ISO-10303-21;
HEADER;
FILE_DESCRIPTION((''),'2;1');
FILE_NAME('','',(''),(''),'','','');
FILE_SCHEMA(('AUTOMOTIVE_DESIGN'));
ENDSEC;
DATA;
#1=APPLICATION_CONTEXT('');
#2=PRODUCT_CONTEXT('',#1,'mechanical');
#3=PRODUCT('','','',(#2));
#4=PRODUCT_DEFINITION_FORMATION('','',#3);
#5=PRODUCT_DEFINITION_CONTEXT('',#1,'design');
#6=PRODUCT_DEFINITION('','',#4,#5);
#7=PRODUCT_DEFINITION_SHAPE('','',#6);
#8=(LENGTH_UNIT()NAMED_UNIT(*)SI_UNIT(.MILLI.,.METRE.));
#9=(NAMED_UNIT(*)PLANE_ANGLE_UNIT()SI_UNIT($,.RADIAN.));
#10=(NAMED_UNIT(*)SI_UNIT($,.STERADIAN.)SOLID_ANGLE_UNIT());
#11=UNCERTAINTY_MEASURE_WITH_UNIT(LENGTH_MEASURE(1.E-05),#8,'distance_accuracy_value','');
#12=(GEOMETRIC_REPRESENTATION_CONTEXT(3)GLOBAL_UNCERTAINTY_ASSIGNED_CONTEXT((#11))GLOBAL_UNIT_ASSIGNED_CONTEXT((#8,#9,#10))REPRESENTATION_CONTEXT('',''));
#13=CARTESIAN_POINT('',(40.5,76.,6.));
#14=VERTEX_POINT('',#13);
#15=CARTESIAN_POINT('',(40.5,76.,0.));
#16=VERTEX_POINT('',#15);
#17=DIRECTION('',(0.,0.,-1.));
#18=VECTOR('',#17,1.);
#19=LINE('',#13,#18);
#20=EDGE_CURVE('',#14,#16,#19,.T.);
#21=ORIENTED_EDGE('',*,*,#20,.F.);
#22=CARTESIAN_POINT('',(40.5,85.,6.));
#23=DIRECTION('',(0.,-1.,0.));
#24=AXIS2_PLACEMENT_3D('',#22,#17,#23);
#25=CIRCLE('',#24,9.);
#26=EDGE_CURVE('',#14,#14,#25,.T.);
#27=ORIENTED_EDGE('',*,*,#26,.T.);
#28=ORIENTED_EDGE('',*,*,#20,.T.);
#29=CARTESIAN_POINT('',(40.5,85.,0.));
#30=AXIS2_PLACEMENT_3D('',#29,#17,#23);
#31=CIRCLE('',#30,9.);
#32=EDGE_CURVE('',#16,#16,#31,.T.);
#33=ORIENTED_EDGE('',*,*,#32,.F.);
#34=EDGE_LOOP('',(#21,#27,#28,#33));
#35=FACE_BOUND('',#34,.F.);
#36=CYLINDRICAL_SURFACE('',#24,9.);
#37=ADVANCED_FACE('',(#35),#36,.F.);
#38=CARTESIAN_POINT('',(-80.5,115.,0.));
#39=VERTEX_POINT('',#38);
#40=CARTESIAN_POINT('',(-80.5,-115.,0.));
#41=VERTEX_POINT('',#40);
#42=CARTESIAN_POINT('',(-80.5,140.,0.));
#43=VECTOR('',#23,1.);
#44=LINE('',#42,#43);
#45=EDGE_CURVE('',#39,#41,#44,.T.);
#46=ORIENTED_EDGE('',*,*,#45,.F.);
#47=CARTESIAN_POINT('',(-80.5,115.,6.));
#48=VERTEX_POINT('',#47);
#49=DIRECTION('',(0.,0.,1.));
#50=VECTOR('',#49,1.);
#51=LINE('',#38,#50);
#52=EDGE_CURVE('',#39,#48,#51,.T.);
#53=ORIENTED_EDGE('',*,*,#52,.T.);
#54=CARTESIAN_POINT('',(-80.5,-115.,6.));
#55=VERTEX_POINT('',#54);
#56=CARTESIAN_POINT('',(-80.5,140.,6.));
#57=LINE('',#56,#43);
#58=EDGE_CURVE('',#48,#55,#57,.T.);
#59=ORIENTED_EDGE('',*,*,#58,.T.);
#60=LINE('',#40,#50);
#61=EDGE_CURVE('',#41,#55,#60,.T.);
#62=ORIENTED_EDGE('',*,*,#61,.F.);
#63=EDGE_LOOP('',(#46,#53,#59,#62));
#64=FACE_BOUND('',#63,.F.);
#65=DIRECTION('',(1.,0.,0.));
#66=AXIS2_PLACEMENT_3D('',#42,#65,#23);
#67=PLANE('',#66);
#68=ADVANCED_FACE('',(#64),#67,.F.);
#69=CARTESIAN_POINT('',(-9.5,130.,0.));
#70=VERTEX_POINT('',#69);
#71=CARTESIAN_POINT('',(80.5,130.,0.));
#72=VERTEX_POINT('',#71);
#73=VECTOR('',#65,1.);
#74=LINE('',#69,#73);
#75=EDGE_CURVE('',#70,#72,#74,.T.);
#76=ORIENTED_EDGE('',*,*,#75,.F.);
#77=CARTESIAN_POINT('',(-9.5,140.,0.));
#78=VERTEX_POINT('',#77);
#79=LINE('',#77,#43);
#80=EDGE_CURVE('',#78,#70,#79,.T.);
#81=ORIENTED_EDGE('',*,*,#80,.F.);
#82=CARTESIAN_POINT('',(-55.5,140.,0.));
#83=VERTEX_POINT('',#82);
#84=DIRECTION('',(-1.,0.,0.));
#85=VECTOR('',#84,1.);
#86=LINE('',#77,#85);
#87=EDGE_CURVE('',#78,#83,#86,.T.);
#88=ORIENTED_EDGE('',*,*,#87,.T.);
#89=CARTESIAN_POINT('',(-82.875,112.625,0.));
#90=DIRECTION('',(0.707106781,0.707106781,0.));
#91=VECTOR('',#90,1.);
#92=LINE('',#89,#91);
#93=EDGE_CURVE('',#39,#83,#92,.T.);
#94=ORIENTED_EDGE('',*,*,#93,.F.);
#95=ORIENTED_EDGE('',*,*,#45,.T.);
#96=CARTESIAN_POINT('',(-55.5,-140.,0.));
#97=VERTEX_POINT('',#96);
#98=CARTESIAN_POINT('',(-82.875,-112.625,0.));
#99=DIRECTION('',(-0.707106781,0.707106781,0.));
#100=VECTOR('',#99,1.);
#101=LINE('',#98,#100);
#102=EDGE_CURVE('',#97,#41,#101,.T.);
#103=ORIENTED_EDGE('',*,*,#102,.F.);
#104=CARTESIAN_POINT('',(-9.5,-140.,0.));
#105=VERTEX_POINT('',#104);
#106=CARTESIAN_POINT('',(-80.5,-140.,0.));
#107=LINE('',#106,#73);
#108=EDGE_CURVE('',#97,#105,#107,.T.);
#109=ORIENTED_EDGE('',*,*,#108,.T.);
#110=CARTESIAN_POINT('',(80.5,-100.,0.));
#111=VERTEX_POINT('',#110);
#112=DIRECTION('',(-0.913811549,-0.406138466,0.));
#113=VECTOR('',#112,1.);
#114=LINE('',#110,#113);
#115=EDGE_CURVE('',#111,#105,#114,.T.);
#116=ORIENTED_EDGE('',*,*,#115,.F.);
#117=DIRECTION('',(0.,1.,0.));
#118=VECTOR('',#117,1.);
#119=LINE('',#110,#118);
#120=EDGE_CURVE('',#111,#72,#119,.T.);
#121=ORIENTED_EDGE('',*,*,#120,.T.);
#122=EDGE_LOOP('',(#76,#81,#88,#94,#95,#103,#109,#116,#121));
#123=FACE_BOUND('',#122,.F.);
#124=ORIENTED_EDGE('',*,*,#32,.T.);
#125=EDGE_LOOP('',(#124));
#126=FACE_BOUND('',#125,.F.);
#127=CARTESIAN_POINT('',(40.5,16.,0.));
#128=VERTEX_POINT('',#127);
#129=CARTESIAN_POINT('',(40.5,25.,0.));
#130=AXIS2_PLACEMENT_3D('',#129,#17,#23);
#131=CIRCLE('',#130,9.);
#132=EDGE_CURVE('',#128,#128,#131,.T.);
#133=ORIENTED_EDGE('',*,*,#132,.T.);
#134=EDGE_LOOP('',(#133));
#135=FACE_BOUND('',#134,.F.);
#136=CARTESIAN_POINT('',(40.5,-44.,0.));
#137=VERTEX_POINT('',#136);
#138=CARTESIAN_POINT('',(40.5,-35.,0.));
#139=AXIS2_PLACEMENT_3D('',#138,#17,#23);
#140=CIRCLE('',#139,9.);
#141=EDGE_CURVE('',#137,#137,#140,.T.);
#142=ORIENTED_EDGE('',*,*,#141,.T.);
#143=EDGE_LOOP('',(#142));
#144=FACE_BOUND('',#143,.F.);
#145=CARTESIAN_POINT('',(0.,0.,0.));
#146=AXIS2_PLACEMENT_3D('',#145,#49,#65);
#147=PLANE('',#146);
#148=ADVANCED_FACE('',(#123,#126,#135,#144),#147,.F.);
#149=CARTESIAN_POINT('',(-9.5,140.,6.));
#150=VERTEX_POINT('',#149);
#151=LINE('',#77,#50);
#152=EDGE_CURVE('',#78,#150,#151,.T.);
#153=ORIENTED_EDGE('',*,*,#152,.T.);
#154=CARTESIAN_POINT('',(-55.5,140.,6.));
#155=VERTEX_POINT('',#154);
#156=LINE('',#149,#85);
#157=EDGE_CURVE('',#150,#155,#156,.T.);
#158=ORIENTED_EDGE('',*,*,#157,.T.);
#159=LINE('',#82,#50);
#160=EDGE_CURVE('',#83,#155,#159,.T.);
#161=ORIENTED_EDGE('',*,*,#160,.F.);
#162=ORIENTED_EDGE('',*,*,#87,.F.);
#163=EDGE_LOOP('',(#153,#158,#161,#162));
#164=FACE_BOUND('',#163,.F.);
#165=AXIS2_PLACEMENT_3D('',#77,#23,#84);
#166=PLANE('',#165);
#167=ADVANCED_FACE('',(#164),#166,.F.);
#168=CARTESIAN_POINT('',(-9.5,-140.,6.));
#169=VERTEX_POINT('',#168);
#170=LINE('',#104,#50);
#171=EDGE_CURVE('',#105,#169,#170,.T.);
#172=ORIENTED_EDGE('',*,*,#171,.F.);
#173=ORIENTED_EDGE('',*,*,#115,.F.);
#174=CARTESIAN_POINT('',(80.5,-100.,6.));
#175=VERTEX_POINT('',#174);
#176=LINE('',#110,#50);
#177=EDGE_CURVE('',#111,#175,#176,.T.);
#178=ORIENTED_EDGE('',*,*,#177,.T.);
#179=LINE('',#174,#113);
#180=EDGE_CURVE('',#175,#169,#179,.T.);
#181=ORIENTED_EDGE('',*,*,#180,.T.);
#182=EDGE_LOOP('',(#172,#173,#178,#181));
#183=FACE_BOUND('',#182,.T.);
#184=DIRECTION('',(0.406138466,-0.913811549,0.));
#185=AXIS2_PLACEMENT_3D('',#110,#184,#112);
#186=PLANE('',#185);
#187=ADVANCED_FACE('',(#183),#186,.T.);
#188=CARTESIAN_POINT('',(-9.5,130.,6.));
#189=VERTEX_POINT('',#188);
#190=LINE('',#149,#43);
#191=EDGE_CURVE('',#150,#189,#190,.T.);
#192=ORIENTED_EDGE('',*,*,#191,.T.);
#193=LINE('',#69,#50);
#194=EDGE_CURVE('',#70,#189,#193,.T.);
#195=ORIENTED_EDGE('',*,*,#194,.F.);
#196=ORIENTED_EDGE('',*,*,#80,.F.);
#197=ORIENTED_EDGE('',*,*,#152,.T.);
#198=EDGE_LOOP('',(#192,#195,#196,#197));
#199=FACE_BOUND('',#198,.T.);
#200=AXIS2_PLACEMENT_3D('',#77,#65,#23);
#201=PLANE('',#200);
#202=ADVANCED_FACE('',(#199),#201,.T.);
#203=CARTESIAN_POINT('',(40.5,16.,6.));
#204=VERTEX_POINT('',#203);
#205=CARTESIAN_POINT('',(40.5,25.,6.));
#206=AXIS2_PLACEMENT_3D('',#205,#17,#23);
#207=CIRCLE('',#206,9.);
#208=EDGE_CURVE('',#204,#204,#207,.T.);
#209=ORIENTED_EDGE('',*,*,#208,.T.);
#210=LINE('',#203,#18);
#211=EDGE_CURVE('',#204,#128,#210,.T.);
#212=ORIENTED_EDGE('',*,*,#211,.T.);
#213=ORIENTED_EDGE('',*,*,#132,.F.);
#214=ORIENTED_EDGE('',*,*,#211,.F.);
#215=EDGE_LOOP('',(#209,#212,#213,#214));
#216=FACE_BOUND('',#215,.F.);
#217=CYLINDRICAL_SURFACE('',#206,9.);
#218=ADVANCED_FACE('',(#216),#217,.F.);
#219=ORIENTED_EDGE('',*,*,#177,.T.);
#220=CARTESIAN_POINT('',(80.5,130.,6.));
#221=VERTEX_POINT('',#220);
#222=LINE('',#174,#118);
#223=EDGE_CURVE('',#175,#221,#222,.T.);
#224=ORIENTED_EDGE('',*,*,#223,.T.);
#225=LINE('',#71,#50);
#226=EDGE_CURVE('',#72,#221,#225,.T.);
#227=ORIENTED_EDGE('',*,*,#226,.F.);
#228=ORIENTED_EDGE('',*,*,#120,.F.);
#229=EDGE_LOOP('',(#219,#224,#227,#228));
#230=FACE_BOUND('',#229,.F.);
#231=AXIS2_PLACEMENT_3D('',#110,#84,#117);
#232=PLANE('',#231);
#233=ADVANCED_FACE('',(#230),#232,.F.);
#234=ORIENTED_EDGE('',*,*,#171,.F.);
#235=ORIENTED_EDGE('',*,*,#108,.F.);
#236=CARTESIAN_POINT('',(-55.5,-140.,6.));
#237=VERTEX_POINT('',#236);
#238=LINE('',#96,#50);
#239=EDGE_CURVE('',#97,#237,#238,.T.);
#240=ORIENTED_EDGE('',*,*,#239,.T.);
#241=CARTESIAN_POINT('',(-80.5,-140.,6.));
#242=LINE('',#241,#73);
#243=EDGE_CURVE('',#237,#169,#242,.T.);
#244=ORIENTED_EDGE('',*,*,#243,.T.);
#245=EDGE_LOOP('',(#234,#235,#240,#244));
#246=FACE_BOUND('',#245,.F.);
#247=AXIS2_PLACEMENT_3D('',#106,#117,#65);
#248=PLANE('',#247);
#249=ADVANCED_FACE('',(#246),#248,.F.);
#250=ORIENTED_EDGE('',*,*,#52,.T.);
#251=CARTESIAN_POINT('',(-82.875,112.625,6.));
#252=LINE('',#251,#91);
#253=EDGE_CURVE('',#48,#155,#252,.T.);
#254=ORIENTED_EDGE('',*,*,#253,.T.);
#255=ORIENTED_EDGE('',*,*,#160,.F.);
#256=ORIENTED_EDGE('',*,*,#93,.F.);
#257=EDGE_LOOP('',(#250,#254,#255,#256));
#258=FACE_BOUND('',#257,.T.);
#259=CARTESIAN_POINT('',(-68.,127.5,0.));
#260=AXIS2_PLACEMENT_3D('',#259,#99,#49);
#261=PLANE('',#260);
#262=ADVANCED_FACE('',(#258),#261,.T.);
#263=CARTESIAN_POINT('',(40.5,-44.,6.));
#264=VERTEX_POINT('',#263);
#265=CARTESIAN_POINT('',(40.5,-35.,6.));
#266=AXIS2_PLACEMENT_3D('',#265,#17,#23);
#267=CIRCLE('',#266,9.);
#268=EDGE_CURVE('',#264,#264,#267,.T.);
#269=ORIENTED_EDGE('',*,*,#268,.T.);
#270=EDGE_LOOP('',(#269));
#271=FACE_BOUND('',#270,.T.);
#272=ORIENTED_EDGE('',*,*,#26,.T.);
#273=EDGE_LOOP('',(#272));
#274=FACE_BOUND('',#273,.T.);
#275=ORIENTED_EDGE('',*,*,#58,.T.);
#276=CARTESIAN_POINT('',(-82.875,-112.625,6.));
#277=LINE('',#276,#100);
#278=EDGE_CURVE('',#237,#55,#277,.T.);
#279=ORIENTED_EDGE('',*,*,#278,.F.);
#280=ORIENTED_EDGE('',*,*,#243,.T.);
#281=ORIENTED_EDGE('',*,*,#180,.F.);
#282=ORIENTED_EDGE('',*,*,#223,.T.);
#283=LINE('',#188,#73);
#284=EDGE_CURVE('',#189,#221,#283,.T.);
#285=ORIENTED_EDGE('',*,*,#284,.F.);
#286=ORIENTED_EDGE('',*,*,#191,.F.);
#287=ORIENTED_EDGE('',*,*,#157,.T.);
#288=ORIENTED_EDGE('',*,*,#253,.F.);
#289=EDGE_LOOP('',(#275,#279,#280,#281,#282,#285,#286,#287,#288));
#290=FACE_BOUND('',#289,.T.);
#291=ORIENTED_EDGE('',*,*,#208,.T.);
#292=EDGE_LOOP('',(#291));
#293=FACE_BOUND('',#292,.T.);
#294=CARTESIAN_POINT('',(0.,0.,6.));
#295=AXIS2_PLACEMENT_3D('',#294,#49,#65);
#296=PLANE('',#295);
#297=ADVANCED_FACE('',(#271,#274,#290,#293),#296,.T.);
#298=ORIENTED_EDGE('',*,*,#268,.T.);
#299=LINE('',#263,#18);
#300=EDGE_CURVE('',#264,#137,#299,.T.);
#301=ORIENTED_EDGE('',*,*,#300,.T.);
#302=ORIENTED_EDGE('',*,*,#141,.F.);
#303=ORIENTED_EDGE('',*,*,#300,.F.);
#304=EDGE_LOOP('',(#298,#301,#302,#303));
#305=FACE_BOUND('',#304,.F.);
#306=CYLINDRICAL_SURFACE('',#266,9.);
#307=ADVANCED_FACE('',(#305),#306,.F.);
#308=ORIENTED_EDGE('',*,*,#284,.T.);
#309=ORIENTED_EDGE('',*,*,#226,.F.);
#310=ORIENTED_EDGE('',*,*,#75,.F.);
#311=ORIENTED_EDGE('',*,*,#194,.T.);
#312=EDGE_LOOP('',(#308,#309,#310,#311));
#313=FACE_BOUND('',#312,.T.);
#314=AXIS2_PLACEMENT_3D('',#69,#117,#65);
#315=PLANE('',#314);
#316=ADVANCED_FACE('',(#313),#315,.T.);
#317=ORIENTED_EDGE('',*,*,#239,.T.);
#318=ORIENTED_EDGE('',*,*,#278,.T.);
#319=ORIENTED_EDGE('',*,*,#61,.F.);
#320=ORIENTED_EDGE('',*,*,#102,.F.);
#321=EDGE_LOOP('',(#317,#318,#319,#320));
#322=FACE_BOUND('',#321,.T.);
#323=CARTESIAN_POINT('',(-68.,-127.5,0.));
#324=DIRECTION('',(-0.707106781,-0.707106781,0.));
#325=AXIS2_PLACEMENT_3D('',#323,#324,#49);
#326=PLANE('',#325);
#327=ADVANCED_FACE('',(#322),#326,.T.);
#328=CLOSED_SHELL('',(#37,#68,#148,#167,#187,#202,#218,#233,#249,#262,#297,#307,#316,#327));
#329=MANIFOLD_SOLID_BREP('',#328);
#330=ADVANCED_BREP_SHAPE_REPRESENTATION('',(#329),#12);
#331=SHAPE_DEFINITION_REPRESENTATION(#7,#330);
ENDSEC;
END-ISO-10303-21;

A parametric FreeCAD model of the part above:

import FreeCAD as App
import Part
import Sketcher
Q = App.Units.Quantity


def edges_at(feature, points):
    """Names of the edges that pass closest to the given points."""
    edges = feature.Shape.Edges
    near = lambda p: min(range(len(edges)), key=lambda i: edges[i].distToShape(Part.Vertex(*p))[0])
    return sorted({f"Edge{near(p) + 1}" for p in points})


def add_polygon(sketch, points):
    """Adds a closed chain of lines whose ends are joined by coincident constraints."""
    first, n = sketch.GeometryCount, len(points)
    for a, b in zip(points, points[1:] + points[:1]):
        sketch.addGeometry(Part.LineSegment(App.Vector(*a, 0), App.Vector(*b, 0)), False)
    for i in range(n):
        sketch.addConstraint(Sketcher.Constraint("Coincident", first + i, 2, first + (i + 1) % n, 1))

doc = App.newDocument("Part")
params = doc.addObject("Spreadsheet::Sheet", "Params")
for row, (alias, value) in enumerate([
    ("sketch1_width", "71 mm"),
    ("sketch1_height", "280 mm"),
    ("sketch1_width2", "90 mm"),
    ("sketch1_height2", "10 mm"),
    ("sketch1_height3", "230 mm"),
    ("pad1_length", "6 mm"),
    ("chamfer_size", "25 mm"),
    ("sketch2_diameter", "18 mm"),
    ("hole_diameter", "18 mm"),
], start=1):
    params.set(f"A{row}", alias)
    params.set(f"B{row}", "=" + value)
    params.setAlias(f"B{row}", alias)

body = doc.addObject("PartDesign::Body", "Body")

# Sketch on XY plane
sketch1 = doc.addObject("Sketcher::SketchObject", "Sketch")
body.addObject(sketch1)
sketch1.AttachmentSupport = (doc.XY_Plane, [""])
sketch1.MapMode = "FlatFace"
add_polygon(sketch1, [(-9.5, 130), (-9.5, 140), (-80.5, 140), (-80.5, -140), (-9.5, -140), (80.5, -100), (80.5, 130)])  # lines 0-6
sketch1.addConstraint([
    Sketcher.Constraint("Vertical", 0),
    Sketcher.Constraint("Horizontal", 1),
    Sketcher.Constraint("Vertical", 2),
    Sketcher.Constraint("Horizontal", 3),
    Sketcher.Constraint("Vertical", 5),
    Sketcher.Constraint("Horizontal", 6),
    Sketcher.Constraint("Symmetric", 0, 2, 3, 2, -1),
    Sketcher.Constraint("DistanceX", 1, 2, 1, 1, Q("71 mm")),
    Sketcher.Constraint("DistanceY", 2, 2, 2, 1, Q("280 mm")),
    Sketcher.Constraint("DistanceX", 6, 2, 6, 1, Q("90 mm")),
    Sketcher.Constraint("DistanceY", 0, 1, 0, 2, Q("10 mm")),
    Sketcher.Constraint("DistanceY", 5, 1, 5, 2, Q("230 mm")),
    Sketcher.Constraint("DistanceX", 0, 2, -1, 1, Q("9.5 mm")),
])
sketch1.setExpression("Constraints[14]", "Params.sketch1_width")
sketch1.setExpression("Constraints[15]", "Params.sketch1_height")
sketch1.setExpression("Constraints[16]", "Params.sketch1_width2")
sketch1.setExpression("Constraints[17]", "Params.sketch1_height2")
sketch1.setExpression("Constraints[18]", "Params.sketch1_height3")
pad1 = doc.addObject("PartDesign::Pad", "Pad")
body.addObject(pad1)
pad1.Profile = sketch1
pad1.setExpression("Length", "Params.pad1_length")
doc.recompute()

chamfer = doc.addObject("PartDesign::Chamfer", "Chamfer")
body.addObject(chamfer)
chamfer.Base = (pad1, edges_at(pad1, [(-80.5, -140, 3), (-80.5, 140, 3)]))
chamfer.setExpression("Size", "Params.chamfer_size")

# Sketch on XY plane
sketch2 = doc.addObject("Sketcher::SketchObject", "Sketch001")
body.addObject(sketch2)
sketch2.AttachmentSupport = (doc.XY_Plane, [""])
sketch2.MapMode = "FlatFace"
sketch2.AttachmentOffset = App.Placement(App.Vector(0, 0, 6), App.Rotation())
sketch2.addGeometry([
    Part.Circle(App.Vector(40.5, 85, 0), App.Vector(0, 0, 1), 9),
    Part.Circle(App.Vector(40.5, 25, 0), App.Vector(0, 0, 1), 9),
    Part.Circle(App.Vector(40.5, -35, 0), App.Vector(0, 0, 1), 9),
], False)
sketch2.addConstraint([
    Sketcher.Constraint("Equal", 0, 1),
    Sketcher.Constraint("Equal", 1, 2),
    Sketcher.Constraint("Vertical", 0, 3, 1, 3),
    Sketcher.Constraint("Vertical", 1, 3, 2, 3),
    Sketcher.Constraint("Diameter", 0, Q("18 mm")),
    Sketcher.Constraint("DistanceY", -1, 1, 0, 3, Q("85 mm")),
    Sketcher.Constraint("DistanceY", -1, 1, 1, 3, Q("25 mm")),
    Sketcher.Constraint("DistanceY", 2, 3, -1, 1, Q("35 mm")),
    Sketcher.Constraint("DistanceX", -1, 1, 0, 3, Q("40.5 mm")),
])
sketch2.setExpression("Constraints[4]", "Params.sketch2_diameter")
doc.recompute()
hole = doc.addObject("PartDesign::Hole", "Hole")
body.addObject(hole)
hole.Profile = sketch2
hole.ThreadType = "None"
hole.setExpression("Diameter", "Params.hole_diameter")
hole.DepthType = "ThroughAll"

doc.recompute()
